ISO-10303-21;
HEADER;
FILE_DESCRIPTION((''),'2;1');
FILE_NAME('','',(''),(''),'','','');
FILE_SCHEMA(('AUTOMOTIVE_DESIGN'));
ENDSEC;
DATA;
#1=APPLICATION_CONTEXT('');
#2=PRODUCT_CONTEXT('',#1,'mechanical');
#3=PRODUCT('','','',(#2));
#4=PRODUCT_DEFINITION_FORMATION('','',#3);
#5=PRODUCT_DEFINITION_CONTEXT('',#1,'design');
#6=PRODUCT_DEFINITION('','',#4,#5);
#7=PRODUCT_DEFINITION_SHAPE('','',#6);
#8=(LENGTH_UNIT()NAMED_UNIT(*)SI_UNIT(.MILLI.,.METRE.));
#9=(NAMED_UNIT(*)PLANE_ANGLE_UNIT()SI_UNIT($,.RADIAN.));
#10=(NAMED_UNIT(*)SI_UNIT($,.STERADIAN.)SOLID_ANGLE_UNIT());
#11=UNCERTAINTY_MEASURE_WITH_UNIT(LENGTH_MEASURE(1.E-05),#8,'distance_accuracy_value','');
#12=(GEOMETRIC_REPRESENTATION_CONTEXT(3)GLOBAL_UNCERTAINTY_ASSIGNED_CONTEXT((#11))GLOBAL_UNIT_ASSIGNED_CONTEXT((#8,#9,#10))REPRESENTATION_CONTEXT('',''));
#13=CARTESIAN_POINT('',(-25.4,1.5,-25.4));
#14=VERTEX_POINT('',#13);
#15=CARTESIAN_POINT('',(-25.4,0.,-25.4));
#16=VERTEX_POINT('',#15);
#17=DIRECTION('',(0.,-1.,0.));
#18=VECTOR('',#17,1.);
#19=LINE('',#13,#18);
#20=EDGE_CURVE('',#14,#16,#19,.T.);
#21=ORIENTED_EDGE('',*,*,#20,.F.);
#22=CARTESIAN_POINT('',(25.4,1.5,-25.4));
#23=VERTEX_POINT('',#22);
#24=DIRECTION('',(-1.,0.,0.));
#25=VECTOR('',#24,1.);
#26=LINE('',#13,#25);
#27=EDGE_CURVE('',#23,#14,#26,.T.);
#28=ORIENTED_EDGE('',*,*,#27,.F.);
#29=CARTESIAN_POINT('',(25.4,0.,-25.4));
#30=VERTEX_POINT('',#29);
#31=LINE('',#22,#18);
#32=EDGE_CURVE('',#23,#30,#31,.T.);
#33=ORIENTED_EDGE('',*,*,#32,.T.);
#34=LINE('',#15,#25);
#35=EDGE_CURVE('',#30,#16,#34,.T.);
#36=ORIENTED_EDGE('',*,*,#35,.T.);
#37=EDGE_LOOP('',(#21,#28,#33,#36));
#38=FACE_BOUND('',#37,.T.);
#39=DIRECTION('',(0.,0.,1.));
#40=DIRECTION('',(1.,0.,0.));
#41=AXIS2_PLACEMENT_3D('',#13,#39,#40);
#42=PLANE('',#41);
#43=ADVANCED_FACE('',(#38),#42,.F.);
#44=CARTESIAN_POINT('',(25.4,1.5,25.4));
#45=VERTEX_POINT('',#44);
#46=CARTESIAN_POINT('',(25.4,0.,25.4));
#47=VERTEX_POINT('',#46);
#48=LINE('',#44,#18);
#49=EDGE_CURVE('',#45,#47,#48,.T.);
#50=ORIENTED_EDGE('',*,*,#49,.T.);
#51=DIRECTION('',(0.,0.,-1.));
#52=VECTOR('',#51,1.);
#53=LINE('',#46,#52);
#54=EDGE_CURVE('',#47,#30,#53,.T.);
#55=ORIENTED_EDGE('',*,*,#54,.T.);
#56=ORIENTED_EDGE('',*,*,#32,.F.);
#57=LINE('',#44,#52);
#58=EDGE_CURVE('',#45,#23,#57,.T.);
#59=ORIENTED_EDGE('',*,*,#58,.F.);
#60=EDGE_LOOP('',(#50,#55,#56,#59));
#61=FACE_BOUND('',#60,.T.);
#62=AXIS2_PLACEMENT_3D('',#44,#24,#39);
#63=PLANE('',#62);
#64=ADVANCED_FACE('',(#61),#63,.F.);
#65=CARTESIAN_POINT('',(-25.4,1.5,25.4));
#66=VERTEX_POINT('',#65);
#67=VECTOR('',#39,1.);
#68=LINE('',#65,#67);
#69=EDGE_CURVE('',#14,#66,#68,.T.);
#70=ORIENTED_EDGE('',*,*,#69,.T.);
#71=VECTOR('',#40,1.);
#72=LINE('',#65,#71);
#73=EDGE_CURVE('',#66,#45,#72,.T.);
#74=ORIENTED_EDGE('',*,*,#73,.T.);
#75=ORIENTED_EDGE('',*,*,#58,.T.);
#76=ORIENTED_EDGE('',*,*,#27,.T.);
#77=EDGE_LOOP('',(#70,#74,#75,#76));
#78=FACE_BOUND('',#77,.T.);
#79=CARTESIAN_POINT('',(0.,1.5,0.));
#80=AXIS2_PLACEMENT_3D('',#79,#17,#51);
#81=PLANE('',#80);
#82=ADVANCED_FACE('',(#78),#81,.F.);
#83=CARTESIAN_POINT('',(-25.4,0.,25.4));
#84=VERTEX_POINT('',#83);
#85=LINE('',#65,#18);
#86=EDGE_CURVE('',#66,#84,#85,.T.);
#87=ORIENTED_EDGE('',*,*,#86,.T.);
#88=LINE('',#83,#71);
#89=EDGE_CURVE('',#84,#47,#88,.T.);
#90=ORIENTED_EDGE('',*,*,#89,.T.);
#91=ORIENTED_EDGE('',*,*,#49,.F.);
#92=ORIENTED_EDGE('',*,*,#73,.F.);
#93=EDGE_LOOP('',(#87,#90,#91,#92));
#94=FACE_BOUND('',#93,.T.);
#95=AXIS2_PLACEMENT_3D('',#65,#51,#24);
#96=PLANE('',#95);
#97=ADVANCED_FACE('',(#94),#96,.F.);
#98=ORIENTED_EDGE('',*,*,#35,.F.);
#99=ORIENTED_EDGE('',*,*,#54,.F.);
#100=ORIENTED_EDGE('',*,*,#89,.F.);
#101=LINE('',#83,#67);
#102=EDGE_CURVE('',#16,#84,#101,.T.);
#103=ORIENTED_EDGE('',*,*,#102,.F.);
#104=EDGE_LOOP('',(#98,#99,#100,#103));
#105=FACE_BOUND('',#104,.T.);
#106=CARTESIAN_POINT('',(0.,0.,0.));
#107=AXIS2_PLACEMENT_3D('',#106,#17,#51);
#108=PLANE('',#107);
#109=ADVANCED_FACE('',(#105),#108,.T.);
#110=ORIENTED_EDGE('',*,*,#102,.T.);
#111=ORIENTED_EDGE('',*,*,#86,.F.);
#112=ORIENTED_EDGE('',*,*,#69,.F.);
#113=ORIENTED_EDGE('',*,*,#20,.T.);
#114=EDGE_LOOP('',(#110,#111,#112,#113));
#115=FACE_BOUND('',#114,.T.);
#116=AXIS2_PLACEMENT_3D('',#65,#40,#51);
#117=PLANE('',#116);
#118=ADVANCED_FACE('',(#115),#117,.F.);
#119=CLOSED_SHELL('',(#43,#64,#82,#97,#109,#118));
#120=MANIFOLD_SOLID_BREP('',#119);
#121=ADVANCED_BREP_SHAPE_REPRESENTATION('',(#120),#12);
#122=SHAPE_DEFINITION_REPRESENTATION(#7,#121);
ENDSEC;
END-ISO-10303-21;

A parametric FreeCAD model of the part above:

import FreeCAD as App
import Part
import Sketcher
from FreeCAD import Vector

doc = App.newDocument("Part")
body = doc.addObject("PartDesign::Body", "Body")

# Sketch on XZ plane
sketch1 = doc.addObject("Sketcher::SketchObject", "Sketch")
body.addObject(sketch1)
sketch1.AttachmentSupport = (doc.XZ_Plane, [""])
sketch1.MapMode = "FlatFace"
sketch1.addGeometry([
    Part.LineSegment(Vector(-25, -25, 0), Vector(-25, 25, 0)),
    Part.LineSegment(Vector(-25, 25, 0), Vector(25, 25, 0)),
    Part.LineSegment(Vector(25, 25, 0), Vector(25, -25, 0)),
    Part.LineSegment(Vector(25, -25, 0), Vector(-25, -25, 0)),
], False)
sketch1.addConstraint([
    Sketcher.Constraint("Coincident", 0, 2, 1, 1),
    Sketcher.Constraint("Coincident", 1, 2, 2, 1),
    Sketcher.Constraint("Coincident", 2, 2, 3, 1),
    Sketcher.Constraint("Coincident", 3, 2, 0, 1),
    Sketcher.Constraint("Vertical", 0),
    Sketcher.Constraint("Horizontal", 1),
    Sketcher.Constraint("Vertical", 2),
    Sketcher.Constraint("Horizontal", 3),
    Sketcher.Constraint("Symmetric", 0, 2, 2, 2, -1, 1),
    Sketcher.Constraint("Equal", 3, 0),
    Sketcher.Constraint("DistanceX", 1, 1, 1, 2, 50.8),
])
pad1 = doc.addObject("PartDesign::Pad", "Pad")
body.addObject(pad1)
pad1.Profile = sketch1
pad1.Length = 1.5
pad1.Reversed = True

doc.recompute()
